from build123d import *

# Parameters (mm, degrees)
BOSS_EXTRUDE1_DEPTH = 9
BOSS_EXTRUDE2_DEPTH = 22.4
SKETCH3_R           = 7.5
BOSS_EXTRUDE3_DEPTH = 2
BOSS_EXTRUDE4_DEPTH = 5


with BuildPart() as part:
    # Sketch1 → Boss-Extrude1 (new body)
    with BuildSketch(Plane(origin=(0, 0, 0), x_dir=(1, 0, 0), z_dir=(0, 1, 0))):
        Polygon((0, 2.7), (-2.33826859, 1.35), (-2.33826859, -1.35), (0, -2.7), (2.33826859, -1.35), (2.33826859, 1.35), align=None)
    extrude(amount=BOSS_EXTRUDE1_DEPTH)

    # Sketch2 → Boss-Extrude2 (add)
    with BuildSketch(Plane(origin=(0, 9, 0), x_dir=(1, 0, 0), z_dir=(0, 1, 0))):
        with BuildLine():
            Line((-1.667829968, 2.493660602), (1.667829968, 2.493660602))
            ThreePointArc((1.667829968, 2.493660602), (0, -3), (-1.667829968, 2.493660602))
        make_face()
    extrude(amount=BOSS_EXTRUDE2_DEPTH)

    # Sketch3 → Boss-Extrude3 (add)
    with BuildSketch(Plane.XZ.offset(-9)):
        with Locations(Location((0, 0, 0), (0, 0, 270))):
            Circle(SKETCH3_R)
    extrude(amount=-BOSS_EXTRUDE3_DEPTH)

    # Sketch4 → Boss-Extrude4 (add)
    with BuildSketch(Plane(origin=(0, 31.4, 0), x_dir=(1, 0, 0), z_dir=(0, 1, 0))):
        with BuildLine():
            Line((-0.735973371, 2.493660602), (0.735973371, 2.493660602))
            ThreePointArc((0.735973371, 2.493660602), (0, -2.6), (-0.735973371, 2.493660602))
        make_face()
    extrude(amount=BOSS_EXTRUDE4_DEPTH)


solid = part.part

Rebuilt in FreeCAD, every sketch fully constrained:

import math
import FreeCAD as App
import Part
import Sketcher
from FreeCAD import Vector
Q = App.Units.Quantity

doc = App.newDocument("Part")
params = doc.addObject("Spreadsheet::Sheet", "Params")
for row, (alias, value) in enumerate([
    ("sketch1_height", "2.7 mm"),
    ("sketch1_length", "2.7 mm"),
    ("pad1_length", "9 mm"),
    ("sketch2_radius", "3 mm"),
    ("pad2_length", "22.4 mm"),
    ("sketch3_diameter", "15 mm"),
    ("pad3_length", "2 mm"),
    ("sketch4_radius", "2.6 mm"),
    ("pad4_length", "5 mm"),
], start=1):
    params.set(f"A{row}", alias)
    params.set(f"B{row}", "=" + value)
    params.setAlias(f"B{row}", alias)

body = doc.addObject("PartDesign::Body", "Body")

# Sketch on XZ plane
sketch1 = body.newObject("Sketcher::SketchObject", "Sketch")
sketch1.AttachmentSupport = (doc.getObject("XZ_Plane"), [""])
sketch1.MapMode = "FlatFace"
sketch1.addGeometry([
    Part.LineSegment(Vector(0, -2.7, 0), Vector(-2.338269, -1.35, 0)),  # 0
    Part.LineSegment(Vector(-2.338269, -1.35, 0), Vector(-2.338269, 1.35, 0)),  # 1
    Part.LineSegment(Vector(-2.338269, 1.35, 0), Vector(0, 2.7, 0)),  # 2
    Part.LineSegment(Vector(0, 2.7, 0), Vector(2.338269, 1.35, 0)),  # 3
    Part.LineSegment(Vector(2.338269, 1.35, 0), Vector(2.338269, -1.35, 0)),  # 4
    Part.LineSegment(Vector(2.338269, -1.35, 0), Vector(0, -2.7, 0)),  # 5
], False)
sketch1.addConstraint([
    Sketcher.Constraint("Coincident", 0, 2, 1, 1),
    Sketcher.Constraint("Coincident", 1, 2, 2, 1),
    Sketcher.Constraint("Coincident", 2, 2, 3, 1),
    Sketcher.Constraint("Coincident", 3, 2, 4, 1),
    Sketcher.Constraint("Coincident", 4, 2, 5, 1),
    Sketcher.Constraint("Coincident", 5, 2, 0, 1),
    Sketcher.Constraint("Vertical", 1),
    Sketcher.Constraint("Vertical", 4),
    Sketcher.Constraint("Symmetric", 0, 2, 3, 2, -1, 1),
    Sketcher.Constraint("Symmetric", 2, 2, 5, 2, -1, 1),
    Sketcher.Constraint("PointOnObject", 2, 2, -2),
    Sketcher.Constraint("Parallel", 2, 5),
    Sketcher.Constraint("Horizontal", 1, 2, 3, 2),
    Sketcher.Constraint("Angle", 0, Q("150 deg")),
    Sketcher.Constraint("DistanceY", 1, 1, 1, 2, Q("2.7 mm")),
    Sketcher.Constraint("Distance", 0, Q("2.7 mm")),
])
sketch1.setExpression("Constraints[14]", "Params.sketch1_height")
sketch1.setExpression("Constraints[15]", "Params.sketch1_length")
pad1 = body.newObject("PartDesign::Pad", "Pad")
pad1.Profile = sketch1
pad1.setExpression("Length", "Params.pad1_length")
pad1.Reversed = True

# Sketch on XZ plane
sketch2 = body.newObject("Sketcher::SketchObject", "Sketch001")
sketch2.AttachmentSupport = (doc.getObject("XZ_Plane"), [""])
sketch2.MapMode = "FlatFace"
sketch2.AttachmentOffset = App.Placement(Vector(0, 0, -9), App.Rotation())
sketch2.addGeometry([
    Part.LineSegment(Vector(1.66783, -2.493661, 0), Vector(-1.66783, -2.493661, 0)),
    Part.ArcOfCircle(Part.Circle(Vector(0, 0, 0), Vector(0, 0, 1), 3), math.radians(-56.224287), math.radians(236.224287)),
], False)
sketch2.addConstraint([
    Sketcher.Constraint("Coincident", 0, 1, 1, 1),
    Sketcher.Constraint("Coincident", 1, 2, 0, 2),
    Sketcher.Constraint("Horizontal", 0),
    Sketcher.Constraint("Coincident", 1, 3, -1, 1),
    Sketcher.Constraint("Radius", 1, Q("3 mm")),
    Sketcher.Constraint("DistanceX", 0, 2, 0, 1, Q("3.33566 mm")),
])
sketch2.setExpression("Constraints[4]", "Params.sketch2_radius")
pad2 = body.newObject("PartDesign::Pad", "Pad001")
pad2.Profile = sketch2
pad2.setExpression("Length", "Params.pad2_length")
pad2.Reversed = True

# Sketch on XZ plane
sketch3 = body.newObject("Sketcher::SketchObject", "Sketch002")
sketch3.AttachmentSupport = (doc.getObject("XZ_Plane"), [""])
sketch3.MapMode = "FlatFace"
sketch3.AttachmentOffset = App.Placement(Vector(0, 0, -9), App.Rotation())
sketch3.addGeometry(Part.Circle(Vector(0, 0, 0), Vector(0, 0, 1), 7.5), False)
sketch3.addConstraint([
    Sketcher.Constraint("Coincident", 0, 3, -1, 1),
    Sketcher.Constraint("Diameter", 0, Q("15 mm")),
])
sketch3.setExpression("Constraints[1]", "Params.sketch3_diameter")
pad3 = body.newObject("PartDesign::Pad", "Pad002")
pad3.Profile = sketch3
pad3.setExpression("Length", "Params.pad3_length")
pad3.Reversed = True

# Sketch on XZ plane
sketch4 = body.newObject("Sketcher::SketchObject", "Sketch003")
sketch4.AttachmentSupport = (doc.getObject("XZ_Plane"), [""])
sketch4.MapMode = "FlatFace"
sketch4.AttachmentOffset = App.Placement(Vector(0, 0, -31.4), App.Rotation())
sketch4.addGeometry([
    Part.LineSegment(Vector(0.735973, -2.493661, 0), Vector(-0.735973, -2.493661, 0)),
    Part.ArcOfCircle(Part.Circle(Vector(0, 0, 0), Vector(0, 0, 1), 2.6), math.radians(-73.556681), math.radians(253.556681)),
], False)
sketch4.addConstraint([
    Sketcher.Constraint("Coincident", 0, 1, 1, 1),
    Sketcher.Constraint("Coincident", 1, 2, 0, 2),
    Sketcher.Constraint("Horizontal", 0),
    Sketcher.Constraint("Coincident", 1, 3, -1, 1),
    Sketcher.Constraint("Radius", 1, Q("2.6 mm")),
    Sketcher.Constraint("DistanceX", 0, 2, 0, 1, Q("1.471947 mm")),
])
sketch4.setExpression("Constraints[4]", "Params.sketch4_radius")
pad4 = body.newObject("PartDesign::Pad", "Pad003")
pad4.Profile = sketch4
pad4.setExpression("Length", "Params.pad4_length")
pad4.Reversed = True

doc.recompute()
